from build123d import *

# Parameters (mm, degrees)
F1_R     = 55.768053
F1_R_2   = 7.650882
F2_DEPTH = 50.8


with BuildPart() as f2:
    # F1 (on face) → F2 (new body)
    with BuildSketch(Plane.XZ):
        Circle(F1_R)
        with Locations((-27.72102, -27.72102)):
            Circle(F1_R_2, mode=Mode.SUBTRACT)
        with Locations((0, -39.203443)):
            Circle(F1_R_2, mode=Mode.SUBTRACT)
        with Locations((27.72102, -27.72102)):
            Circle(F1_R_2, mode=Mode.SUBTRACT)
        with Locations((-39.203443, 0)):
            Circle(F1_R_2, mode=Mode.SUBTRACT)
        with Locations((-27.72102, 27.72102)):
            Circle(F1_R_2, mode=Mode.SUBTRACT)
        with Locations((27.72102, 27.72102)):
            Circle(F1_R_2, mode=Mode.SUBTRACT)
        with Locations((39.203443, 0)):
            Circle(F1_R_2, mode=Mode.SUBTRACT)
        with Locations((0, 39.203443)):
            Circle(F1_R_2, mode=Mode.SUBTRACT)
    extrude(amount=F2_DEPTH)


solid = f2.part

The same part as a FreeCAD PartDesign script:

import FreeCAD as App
import Part
import Sketcher
from FreeCAD import Vector
Q = App.Units.Quantity

doc = App.newDocument("Part")
body = doc.addObject("PartDesign::Body", "Body")

# Sketch on XZ plane
sketch1 = body.newObject("Sketcher::SketchObject", "Sketch")
sketch1.AttachmentSupport = (doc.getObject("XZ_Plane"), [""])
sketch1.MapMode = "FlatFace"
sketch1.addGeometry([
    Part.Circle(Vector(0, 0, 0), Vector(0, 0, 1), 56),  # 0
    Part.Circle(Vector(-28, -28, 0), Vector(0, 0, 1), 8),  # 1
    Part.Circle(Vector(0, -39, 0), Vector(0, 0, 1), 8),  # 2
    Part.Circle(Vector(-39, 0, 0), Vector(0, 0, 1), 8),  # 3
    Part.Circle(Vector(28, -28, 0), Vector(0, 0, 1), 8),  # 4
    Part.Circle(Vector(39, 0, 0), Vector(0, 0, 1), 8),  # 5
    Part.Circle(Vector(-28, 28, 0), Vector(0, 0, 1), 8),  # 6
    Part.Circle(Vector(0, 39, 0), Vector(0, 0, 1), 8),  # 7
    Part.Circle(Vector(28, 28, 0), Vector(0, 0, 1), 8),  # 8
], False)
sketch1.addConstraint([
    Sketcher.Constraint("Coincident", 0, 3, -1, 1),
    Sketcher.Constraint("Equal", 1, 2),
    Sketcher.Constraint("Equal", 2, 3),
    Sketcher.Constraint("Equal", 3, 4),
    Sketcher.Constraint("Equal", 4, 5),
    Sketcher.Constraint("Equal", 5, 6),
    Sketcher.Constraint("Equal", 6, 7),
    Sketcher.Constraint("Equal", 7, 8),
    Sketcher.Constraint("Symmetric", 3, 3, 5, 3, -1, 1),
    Sketcher.Constraint("Symmetric", 4, 3, 6, 3, -1, 1),
    Sketcher.Constraint("Symmetric", 2, 3, 7, 3, -1, 1),
    Sketcher.Constraint("Symmetric", 1, 3, 8, 3, -1, 1),
    Sketcher.Constraint("Symmetric", 1, 3, 4, 3, -2),
    Sketcher.Constraint("PointOnObject", 2, 3, -2),
    Sketcher.Constraint("PointOnObject", 3, 3, -1),
    Sketcher.Constraint("Diameter", 0, Q("111.536106 mm")),
    Sketcher.Constraint("Diameter", 1, Q("15.301764 mm")),
    Sketcher.Constraint("DistanceX", 1, 3, -1, 1, Q("27.72102 mm")),
    Sketcher.Constraint("DistanceY", 1, 3, -1, 1, Q("27.72102 mm")),
    Sketcher.Constraint("DistanceY", 2, 3, -1, 1, Q("39.203443 mm")),
    Sketcher.Constraint("DistanceX", 3, 3, -1, 1, Q("39.203443 mm")),
])
pad1 = body.newObject("PartDesign::Pad", "Pad")
pad1.Profile = sketch1
pad1.Length = Q("2 in")

doc.recompute()
